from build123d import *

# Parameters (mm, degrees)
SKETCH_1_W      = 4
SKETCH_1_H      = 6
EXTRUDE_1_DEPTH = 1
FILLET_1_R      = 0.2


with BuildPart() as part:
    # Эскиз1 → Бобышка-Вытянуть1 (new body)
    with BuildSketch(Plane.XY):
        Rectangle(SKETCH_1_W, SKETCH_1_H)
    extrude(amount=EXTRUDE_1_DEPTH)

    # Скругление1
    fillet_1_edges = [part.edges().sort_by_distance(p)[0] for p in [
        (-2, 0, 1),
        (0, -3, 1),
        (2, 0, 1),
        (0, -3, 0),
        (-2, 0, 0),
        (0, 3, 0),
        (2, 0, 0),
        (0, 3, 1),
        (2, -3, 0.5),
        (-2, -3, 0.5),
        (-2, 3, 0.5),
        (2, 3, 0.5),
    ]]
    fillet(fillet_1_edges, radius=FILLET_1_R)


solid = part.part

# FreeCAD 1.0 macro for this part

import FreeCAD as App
import Part
import Sketcher
Q = App.Units.Quantity


def add_polygon(sketch, points):
    """Adds a closed chain of lines whose ends are joined by coincident constraints."""
    first, n = sketch.GeometryCount, len(points)
    for a, b in zip(points, points[1:] + points[:1]):
        sketch.addGeometry(Part.LineSegment(App.Vector(*a, 0), App.Vector(*b, 0)), False)
    for i in range(n):
        sketch.addConstraint(Sketcher.Constraint("Coincident", first + i, 2, first + (i + 1) % n, 1))

doc = App.newDocument("Part")
body = doc.addObject("PartDesign::Body", "Body")

sketch1 = doc.addObject("Sketcher::SketchObject", "Sketch")
body.addObject(sketch1)
sketch1.AttachmentSupport = (doc.XY_Plane, [""])
sketch1.MapMode = "FlatFace"
add_polygon(sketch1, [(-2, 3), (-2, -3), (2, -3), (2, 3)])
sketch1.addConstraint([
    Sketcher.Constraint("Vertical", 0),
    Sketcher.Constraint("Horizontal", 1),
    Sketcher.Constraint("Vertical", 2),
    Sketcher.Constraint("Horizontal", 3),
    Sketcher.Constraint("Symmetric", 0, 2, 2, 2, -1, 1),
    Sketcher.Constraint("DistanceX", 1, 1, 1, 2, Q("4 mm")),
    Sketcher.Constraint("DistanceY", 0, 2, 0, 1, Q("6 mm")),
])
pad1 = doc.addObject("PartDesign::Pad", "Pad")
body.addObject(pad1)
pad1.Profile = sketch1
pad1.Length = 1
doc.recompute()

fillet = doc.addObject("PartDesign::Fillet", "Fillet")
body.addObject(fillet)
fillet.Base = (pad1, ["Edge1"])
fillet.UseAllEdges = True
fillet.Radius = 0.2

doc.recompute()
